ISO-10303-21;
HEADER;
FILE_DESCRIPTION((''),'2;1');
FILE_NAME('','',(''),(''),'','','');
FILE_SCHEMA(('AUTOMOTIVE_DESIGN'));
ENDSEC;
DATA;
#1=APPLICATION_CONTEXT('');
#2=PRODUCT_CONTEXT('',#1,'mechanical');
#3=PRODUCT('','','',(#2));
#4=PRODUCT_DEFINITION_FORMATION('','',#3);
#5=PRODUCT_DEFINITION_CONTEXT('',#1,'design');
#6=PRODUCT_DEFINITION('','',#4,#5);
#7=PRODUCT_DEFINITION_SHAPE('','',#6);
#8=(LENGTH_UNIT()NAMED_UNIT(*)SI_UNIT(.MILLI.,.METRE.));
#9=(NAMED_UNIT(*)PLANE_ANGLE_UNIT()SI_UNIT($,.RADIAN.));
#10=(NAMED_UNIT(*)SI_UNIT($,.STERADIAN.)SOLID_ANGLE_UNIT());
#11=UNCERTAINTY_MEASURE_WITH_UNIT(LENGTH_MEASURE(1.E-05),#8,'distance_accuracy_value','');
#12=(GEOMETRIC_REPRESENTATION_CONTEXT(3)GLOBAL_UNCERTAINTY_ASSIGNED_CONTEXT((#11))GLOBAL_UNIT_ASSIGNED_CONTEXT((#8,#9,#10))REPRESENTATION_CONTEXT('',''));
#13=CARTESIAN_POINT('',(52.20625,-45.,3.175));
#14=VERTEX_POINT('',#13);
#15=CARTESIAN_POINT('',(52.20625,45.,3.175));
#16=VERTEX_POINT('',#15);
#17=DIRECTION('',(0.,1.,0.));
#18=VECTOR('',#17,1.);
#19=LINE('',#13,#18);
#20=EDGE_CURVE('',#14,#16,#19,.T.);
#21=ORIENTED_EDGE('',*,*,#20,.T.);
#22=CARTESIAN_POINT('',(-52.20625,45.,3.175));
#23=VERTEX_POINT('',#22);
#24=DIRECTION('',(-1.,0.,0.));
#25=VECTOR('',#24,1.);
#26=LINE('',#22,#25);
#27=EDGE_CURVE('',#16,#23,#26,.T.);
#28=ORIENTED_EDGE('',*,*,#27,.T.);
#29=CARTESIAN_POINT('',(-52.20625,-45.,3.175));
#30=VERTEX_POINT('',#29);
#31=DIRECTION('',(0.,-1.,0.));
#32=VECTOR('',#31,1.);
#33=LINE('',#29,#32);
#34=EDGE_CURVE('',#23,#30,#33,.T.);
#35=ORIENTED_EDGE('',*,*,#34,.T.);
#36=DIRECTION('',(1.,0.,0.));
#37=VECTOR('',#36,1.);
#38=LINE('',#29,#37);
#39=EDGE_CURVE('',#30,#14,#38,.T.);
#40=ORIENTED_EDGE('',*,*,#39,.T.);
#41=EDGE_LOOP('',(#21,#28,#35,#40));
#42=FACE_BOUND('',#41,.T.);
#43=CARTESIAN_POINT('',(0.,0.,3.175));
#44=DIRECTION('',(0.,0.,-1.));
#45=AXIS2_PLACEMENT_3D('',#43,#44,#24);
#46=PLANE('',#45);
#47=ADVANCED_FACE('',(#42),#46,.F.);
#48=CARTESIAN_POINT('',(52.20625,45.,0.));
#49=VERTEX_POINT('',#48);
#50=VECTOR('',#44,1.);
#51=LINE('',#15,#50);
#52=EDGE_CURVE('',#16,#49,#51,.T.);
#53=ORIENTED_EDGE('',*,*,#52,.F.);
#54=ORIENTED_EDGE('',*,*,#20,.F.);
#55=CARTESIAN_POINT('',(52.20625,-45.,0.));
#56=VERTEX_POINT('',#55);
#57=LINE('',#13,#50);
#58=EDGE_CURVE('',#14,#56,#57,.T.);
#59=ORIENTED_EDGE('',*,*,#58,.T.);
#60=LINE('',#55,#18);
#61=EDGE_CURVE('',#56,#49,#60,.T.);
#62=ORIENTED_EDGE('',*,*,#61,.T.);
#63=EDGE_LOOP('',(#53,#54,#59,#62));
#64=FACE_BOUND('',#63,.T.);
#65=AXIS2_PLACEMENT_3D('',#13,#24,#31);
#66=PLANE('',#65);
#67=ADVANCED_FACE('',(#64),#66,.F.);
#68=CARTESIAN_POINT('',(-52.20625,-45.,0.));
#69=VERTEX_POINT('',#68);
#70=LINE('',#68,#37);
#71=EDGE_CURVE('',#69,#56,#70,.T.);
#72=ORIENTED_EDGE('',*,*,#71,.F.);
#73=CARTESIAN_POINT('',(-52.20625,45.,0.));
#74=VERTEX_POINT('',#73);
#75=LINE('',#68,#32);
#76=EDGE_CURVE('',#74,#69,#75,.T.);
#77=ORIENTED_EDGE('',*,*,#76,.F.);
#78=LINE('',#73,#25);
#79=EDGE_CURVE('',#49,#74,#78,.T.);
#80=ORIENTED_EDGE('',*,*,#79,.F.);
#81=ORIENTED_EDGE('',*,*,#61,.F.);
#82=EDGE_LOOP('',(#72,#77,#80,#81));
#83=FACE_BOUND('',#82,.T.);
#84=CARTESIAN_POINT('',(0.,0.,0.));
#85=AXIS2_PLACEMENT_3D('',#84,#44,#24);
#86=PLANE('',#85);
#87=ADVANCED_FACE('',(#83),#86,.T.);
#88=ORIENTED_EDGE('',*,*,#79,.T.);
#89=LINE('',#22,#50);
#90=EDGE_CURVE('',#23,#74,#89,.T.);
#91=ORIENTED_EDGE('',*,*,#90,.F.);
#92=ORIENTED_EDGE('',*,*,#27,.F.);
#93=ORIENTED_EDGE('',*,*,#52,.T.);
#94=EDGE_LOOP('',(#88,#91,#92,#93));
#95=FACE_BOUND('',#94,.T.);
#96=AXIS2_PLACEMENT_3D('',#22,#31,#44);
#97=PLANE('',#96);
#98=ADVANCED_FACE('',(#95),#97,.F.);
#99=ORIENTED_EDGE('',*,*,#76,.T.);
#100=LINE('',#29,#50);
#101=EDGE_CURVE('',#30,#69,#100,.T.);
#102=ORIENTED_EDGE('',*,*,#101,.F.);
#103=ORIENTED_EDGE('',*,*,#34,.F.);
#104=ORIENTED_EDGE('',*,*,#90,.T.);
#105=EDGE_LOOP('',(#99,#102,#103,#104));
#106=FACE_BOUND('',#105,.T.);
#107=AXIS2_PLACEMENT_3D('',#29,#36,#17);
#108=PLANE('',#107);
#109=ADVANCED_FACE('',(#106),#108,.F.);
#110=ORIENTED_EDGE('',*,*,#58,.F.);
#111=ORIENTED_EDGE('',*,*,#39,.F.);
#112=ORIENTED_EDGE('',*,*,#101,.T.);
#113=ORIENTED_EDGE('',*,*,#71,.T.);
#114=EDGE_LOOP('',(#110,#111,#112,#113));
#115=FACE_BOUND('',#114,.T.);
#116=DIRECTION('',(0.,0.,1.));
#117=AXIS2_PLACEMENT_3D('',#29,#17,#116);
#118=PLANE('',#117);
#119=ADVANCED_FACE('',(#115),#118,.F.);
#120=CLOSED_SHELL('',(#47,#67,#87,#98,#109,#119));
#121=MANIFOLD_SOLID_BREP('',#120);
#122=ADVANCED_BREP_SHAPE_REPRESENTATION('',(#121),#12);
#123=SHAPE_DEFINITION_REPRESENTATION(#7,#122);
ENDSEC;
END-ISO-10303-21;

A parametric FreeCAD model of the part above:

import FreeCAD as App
import Part
import Sketcher

V = App.Vector

doc = App.newDocument("Part")
body = doc.addObject("PartDesign::Body", "Body")

sketch1 = body.newObject("Sketcher::SketchObject", "Sketch")
sketch1.AttachmentSupport = (doc.getObject("XY_Plane"), [""])
sketch1.MapMode = "FlatFace"
sketch1.addGeometry(Part.LineSegment(V(-52, 45, 0), V(-52, -45, 0)), False)
sketch1.addGeometry(Part.LineSegment(V(-52, -45, 0), V(52, -45, 0)), False)
sketch1.addGeometry(Part.LineSegment(V(52, -45, 0), V(52, 45, 0)), False)
sketch1.addGeometry(Part.LineSegment(V(52, 45, 0), V(-52, 45, 0)), False)
sketch1.addConstraint(Sketcher.Constraint("Coincident", 0, 2, 1, 1))
sketch1.addConstraint(Sketcher.Constraint("Coincident", 1, 2, 2, 1))
sketch1.addConstraint(Sketcher.Constraint("Coincident", 2, 2, 3, 1))
sketch1.addConstraint(Sketcher.Constraint("Coincident", 3, 2, 0, 1))
sketch1.addConstraint(Sketcher.Constraint("Vertical", 0))
sketch1.addConstraint(Sketcher.Constraint("Horizontal", 1))
sketch1.addConstraint(Sketcher.Constraint("Vertical", 2))
sketch1.addConstraint(Sketcher.Constraint("Horizontal", 3))
sketch1.addConstraint(Sketcher.Constraint("Symmetric", 0, 2, 2, 2, -1, 1))
sketch1.addConstraint(Sketcher.Constraint("DistanceY", 0, 2, 0, 1, 90.0))
sketch1.addConstraint(Sketcher.Constraint("DistanceX", 1, 1, 1, 2, 104.4125))
pad1 = body.newObject("PartDesign::Pad", "Pad")
pad1.Profile = sketch1
pad1.Length = 3.175

doc.recompute()
